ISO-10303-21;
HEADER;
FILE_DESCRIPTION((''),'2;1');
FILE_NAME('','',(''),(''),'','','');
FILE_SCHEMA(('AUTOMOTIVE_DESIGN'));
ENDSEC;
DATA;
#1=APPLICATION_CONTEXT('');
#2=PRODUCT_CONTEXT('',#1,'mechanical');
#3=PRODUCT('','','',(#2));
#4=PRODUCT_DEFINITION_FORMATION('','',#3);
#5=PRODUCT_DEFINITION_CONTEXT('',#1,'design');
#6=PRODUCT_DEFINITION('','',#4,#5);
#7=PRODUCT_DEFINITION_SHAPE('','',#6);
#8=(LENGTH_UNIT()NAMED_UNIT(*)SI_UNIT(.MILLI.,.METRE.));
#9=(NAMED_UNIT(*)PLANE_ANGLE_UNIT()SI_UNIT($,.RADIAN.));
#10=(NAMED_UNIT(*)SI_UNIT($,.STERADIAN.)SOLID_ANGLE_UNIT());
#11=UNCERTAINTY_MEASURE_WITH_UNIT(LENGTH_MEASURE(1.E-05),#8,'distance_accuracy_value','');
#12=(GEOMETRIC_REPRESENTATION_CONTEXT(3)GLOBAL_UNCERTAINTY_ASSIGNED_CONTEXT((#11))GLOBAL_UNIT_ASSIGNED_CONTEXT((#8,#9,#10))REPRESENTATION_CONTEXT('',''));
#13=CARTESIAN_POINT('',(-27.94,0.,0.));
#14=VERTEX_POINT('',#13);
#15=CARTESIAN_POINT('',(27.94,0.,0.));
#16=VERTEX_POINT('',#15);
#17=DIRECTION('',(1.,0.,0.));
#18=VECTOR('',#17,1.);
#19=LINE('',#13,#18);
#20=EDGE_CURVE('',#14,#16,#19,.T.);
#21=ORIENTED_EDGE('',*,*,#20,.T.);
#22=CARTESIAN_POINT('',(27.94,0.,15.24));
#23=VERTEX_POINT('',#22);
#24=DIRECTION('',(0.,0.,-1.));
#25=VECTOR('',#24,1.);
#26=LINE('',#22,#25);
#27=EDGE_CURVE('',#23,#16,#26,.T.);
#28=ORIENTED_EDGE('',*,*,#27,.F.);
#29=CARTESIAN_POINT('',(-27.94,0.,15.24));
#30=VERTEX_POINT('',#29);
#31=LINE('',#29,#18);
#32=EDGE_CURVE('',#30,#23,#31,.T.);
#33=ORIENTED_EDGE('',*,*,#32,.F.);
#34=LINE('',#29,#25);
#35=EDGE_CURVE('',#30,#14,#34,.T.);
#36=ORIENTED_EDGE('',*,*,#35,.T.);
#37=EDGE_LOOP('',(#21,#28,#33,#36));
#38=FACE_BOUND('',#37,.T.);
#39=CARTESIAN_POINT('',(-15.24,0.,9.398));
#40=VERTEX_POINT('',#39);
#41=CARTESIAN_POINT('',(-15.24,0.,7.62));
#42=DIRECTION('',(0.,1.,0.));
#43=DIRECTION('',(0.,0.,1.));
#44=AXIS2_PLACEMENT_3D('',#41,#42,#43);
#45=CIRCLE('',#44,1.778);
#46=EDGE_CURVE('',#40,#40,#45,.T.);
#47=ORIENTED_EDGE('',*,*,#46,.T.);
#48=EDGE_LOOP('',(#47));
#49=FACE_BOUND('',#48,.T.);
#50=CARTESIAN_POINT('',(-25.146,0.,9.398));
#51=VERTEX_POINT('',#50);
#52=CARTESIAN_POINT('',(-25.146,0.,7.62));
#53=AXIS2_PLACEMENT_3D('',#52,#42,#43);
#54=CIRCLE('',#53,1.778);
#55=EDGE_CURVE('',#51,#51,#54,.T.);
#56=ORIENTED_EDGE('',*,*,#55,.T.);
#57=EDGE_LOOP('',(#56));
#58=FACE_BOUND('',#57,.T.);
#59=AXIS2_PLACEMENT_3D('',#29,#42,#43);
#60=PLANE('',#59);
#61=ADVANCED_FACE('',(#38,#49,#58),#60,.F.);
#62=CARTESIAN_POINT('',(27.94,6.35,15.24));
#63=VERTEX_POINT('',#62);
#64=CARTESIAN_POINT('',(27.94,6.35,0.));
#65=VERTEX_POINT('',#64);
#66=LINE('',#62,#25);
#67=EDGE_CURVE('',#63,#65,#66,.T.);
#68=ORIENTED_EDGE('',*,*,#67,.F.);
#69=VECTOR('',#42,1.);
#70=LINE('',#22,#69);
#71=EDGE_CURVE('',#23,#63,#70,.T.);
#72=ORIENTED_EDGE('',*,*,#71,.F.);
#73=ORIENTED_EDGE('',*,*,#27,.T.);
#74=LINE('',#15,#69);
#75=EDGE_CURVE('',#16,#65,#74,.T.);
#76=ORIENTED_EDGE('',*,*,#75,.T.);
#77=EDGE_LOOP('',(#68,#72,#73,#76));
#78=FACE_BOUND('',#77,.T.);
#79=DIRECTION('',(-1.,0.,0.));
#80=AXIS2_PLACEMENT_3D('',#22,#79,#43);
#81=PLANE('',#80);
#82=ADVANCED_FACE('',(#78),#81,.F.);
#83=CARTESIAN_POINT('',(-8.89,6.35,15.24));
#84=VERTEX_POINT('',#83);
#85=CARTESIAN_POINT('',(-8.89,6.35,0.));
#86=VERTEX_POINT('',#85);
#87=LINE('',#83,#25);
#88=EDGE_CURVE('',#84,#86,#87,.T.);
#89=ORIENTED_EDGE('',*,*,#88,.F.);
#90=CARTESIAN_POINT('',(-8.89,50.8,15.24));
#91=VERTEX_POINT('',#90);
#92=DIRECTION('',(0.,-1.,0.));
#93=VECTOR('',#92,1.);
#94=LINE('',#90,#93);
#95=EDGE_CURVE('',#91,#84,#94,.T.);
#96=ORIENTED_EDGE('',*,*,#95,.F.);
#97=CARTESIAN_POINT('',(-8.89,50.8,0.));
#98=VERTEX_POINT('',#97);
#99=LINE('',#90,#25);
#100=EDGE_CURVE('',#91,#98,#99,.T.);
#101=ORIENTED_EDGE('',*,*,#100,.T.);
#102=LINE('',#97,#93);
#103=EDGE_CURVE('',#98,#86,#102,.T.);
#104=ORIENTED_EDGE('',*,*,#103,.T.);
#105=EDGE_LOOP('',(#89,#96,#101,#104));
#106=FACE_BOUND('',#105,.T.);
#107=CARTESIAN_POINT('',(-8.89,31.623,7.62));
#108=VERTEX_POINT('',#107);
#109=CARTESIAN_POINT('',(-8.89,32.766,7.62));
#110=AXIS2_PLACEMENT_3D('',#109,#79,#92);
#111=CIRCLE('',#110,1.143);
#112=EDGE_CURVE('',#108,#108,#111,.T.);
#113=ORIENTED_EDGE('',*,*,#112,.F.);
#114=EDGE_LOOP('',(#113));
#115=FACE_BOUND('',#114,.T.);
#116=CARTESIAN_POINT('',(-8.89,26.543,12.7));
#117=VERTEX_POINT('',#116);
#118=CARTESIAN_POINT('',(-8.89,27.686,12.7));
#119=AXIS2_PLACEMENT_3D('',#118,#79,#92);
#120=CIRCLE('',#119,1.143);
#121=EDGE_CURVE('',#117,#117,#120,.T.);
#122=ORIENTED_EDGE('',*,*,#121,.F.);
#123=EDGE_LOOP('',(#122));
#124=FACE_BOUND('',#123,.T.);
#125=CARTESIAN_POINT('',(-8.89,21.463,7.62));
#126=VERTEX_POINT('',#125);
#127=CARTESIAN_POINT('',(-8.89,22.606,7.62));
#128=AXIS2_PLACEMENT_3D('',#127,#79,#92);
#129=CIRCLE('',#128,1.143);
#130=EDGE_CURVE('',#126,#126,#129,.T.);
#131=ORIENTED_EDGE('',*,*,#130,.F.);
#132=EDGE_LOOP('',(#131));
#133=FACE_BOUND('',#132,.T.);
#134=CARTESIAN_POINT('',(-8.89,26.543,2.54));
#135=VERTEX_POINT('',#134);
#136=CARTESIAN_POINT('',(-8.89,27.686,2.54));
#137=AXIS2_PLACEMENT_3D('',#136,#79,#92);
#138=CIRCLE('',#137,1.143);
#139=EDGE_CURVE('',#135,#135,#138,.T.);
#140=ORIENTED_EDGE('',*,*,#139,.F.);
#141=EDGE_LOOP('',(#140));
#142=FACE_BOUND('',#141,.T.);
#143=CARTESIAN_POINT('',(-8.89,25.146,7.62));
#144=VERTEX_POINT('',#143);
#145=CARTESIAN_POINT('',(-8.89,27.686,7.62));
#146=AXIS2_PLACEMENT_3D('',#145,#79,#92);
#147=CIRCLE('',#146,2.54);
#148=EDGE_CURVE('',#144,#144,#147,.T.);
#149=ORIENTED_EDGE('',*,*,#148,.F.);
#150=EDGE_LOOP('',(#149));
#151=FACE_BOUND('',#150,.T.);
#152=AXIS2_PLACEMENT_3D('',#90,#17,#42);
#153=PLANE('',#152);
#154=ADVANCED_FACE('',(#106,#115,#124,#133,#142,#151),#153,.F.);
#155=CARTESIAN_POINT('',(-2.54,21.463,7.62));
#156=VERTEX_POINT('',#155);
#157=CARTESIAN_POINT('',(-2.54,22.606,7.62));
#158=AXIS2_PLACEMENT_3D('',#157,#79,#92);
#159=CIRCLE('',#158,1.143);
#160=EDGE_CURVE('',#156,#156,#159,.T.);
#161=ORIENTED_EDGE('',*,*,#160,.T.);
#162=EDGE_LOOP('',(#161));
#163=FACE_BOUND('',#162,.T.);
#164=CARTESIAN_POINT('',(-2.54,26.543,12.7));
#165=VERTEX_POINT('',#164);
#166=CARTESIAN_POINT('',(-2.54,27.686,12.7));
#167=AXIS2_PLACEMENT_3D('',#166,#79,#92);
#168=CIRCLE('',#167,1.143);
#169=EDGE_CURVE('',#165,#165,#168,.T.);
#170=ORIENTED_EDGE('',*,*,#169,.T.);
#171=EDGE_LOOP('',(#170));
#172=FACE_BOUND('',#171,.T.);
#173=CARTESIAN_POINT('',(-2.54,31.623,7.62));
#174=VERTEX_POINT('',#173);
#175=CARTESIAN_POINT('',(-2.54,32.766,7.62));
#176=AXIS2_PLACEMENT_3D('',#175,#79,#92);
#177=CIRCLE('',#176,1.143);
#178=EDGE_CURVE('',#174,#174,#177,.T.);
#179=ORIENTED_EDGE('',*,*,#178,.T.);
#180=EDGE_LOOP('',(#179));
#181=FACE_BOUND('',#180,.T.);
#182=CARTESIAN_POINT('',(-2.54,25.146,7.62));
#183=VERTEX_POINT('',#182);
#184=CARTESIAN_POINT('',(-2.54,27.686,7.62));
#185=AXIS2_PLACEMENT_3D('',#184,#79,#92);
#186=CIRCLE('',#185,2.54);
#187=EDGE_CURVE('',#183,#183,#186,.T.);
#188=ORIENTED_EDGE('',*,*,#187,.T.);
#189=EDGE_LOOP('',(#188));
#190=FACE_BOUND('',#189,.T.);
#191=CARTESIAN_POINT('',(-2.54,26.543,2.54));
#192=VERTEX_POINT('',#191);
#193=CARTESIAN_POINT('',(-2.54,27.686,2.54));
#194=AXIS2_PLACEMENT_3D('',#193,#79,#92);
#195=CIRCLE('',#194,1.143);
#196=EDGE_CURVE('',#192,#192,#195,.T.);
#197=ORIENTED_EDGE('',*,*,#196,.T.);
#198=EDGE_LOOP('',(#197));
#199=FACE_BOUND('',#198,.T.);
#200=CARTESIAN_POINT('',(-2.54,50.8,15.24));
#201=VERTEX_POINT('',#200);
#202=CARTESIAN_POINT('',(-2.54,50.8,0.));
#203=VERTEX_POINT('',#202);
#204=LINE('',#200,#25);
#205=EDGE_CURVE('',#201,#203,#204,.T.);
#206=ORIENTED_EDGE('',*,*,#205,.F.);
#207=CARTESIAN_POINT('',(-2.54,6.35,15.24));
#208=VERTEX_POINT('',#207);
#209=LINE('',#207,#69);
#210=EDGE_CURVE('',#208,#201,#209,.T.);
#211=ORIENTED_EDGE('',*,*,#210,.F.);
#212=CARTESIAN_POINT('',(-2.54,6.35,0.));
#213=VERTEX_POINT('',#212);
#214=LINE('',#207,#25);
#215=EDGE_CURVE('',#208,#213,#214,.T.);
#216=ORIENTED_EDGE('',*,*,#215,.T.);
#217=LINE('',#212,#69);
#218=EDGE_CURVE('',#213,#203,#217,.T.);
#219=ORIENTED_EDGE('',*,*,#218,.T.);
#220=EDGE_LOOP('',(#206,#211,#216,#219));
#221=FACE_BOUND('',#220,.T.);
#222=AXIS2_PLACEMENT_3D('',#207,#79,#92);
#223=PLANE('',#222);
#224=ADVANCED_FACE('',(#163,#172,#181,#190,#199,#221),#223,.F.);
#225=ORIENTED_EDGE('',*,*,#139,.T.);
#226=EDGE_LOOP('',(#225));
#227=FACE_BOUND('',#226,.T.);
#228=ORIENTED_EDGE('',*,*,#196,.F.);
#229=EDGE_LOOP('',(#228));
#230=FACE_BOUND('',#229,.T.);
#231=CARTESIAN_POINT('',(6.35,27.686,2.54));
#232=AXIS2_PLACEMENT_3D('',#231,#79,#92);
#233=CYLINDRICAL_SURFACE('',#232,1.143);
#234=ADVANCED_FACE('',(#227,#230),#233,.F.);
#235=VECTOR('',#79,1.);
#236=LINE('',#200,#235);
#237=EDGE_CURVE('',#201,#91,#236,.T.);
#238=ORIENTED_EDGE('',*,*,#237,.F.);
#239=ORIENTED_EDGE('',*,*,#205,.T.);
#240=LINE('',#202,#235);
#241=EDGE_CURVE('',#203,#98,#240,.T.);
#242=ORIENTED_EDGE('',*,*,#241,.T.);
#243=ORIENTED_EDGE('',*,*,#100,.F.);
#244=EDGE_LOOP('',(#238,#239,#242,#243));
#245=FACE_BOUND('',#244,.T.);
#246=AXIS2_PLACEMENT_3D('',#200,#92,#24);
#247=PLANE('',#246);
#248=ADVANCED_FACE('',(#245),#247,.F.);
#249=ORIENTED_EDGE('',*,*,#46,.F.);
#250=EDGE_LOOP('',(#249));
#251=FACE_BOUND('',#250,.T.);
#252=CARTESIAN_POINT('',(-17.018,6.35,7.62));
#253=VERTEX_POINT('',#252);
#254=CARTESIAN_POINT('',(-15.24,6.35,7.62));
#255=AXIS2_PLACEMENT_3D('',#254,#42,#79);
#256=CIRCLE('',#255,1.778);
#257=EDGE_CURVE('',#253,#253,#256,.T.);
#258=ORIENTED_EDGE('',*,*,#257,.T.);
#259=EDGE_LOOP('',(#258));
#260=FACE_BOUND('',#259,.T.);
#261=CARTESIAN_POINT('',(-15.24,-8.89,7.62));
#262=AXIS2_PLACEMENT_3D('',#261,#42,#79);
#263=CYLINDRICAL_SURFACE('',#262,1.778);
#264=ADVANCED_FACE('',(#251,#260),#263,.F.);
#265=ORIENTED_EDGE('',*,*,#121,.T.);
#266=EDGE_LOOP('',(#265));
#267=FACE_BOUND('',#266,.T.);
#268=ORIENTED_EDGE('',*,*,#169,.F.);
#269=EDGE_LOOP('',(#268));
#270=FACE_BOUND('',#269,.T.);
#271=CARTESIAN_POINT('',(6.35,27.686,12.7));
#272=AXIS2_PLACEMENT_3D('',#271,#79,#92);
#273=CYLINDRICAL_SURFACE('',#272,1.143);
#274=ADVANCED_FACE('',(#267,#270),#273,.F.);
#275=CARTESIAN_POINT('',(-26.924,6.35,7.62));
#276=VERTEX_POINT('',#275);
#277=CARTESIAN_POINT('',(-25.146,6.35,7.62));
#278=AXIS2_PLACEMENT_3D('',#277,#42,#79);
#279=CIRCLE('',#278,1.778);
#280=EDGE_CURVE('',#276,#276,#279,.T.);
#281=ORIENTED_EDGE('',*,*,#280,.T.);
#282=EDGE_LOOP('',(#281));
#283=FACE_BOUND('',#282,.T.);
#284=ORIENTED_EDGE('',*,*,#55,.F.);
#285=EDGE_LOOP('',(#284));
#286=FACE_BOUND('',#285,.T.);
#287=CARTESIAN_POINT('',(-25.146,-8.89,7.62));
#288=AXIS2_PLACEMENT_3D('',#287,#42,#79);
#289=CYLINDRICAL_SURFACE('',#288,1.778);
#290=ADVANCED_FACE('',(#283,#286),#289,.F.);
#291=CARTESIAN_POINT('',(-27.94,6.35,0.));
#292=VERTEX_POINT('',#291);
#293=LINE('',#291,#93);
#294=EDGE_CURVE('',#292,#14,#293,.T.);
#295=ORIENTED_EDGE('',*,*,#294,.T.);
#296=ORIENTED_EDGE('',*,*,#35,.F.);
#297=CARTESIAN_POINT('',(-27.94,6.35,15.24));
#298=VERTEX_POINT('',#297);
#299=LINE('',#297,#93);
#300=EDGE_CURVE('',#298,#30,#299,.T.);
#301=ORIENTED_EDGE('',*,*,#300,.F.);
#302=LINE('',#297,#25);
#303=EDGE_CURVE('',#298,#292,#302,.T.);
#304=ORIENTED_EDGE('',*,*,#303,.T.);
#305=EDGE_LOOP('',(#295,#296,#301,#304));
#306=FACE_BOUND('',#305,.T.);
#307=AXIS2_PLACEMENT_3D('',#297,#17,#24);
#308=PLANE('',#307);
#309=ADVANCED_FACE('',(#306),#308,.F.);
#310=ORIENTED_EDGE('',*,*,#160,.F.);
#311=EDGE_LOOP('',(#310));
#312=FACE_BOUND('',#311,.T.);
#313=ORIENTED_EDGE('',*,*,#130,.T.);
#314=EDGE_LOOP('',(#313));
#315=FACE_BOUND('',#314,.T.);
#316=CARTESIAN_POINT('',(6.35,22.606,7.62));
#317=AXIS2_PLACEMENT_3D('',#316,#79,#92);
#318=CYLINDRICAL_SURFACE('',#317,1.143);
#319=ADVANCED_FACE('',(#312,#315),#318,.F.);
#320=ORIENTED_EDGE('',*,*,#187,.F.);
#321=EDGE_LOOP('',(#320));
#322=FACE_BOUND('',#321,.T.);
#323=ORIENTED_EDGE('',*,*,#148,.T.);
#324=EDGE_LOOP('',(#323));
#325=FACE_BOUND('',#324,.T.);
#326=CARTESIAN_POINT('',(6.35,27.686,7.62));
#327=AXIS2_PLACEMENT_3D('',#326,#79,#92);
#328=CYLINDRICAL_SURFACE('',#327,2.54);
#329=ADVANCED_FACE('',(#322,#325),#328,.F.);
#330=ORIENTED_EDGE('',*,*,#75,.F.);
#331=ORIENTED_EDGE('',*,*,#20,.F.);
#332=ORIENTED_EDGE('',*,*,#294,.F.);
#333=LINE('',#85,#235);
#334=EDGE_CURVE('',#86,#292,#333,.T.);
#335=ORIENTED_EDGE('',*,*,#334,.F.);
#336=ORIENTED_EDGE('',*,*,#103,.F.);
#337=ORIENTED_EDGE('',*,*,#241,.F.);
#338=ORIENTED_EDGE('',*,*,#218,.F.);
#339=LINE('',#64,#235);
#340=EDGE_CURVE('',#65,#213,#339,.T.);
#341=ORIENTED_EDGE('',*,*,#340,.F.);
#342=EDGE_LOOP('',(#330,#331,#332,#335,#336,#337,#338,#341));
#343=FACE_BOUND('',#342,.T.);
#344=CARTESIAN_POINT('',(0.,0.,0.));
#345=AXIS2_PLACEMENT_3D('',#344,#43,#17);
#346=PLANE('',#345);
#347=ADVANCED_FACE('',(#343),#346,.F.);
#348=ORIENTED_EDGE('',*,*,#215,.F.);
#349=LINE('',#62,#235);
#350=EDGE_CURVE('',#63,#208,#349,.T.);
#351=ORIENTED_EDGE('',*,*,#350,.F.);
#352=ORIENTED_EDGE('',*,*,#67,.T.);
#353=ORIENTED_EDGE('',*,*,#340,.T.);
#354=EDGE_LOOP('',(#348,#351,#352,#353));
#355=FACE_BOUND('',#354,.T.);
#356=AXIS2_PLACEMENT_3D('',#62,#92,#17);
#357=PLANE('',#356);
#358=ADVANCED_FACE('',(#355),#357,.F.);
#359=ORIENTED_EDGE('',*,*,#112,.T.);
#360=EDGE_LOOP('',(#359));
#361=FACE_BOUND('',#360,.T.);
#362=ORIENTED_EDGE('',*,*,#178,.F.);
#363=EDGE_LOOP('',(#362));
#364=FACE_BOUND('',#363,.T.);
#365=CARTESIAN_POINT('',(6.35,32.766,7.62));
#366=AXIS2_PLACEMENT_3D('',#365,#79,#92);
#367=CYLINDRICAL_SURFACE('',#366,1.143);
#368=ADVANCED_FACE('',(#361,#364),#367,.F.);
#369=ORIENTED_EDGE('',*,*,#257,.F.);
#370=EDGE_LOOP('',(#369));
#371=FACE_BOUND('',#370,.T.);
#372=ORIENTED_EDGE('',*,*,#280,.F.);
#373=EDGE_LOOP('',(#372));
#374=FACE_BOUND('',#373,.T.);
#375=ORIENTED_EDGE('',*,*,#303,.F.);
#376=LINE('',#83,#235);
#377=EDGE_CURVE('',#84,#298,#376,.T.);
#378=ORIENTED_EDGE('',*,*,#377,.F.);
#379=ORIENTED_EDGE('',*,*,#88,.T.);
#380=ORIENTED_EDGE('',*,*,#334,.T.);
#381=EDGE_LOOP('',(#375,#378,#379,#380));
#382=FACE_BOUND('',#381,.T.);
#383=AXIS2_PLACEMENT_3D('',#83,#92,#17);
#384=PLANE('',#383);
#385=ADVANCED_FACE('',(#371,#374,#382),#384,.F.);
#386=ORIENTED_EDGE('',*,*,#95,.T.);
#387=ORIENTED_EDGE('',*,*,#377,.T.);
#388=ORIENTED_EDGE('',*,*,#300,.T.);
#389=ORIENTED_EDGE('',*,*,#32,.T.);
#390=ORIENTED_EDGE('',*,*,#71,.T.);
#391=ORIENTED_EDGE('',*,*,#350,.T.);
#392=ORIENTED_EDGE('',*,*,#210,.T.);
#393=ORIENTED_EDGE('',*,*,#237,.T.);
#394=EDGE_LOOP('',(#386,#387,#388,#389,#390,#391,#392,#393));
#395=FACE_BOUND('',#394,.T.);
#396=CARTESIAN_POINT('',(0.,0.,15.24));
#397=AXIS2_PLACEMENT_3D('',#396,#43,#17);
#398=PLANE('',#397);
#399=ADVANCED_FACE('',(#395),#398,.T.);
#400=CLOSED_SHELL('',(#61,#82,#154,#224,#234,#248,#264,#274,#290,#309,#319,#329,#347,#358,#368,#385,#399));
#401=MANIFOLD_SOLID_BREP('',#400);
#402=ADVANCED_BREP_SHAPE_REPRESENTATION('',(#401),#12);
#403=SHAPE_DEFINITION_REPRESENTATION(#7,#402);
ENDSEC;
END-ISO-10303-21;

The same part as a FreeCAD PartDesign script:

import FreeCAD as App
import Part
import Sketcher
from FreeCAD import Vector
Q = App.Units.Quantity


def add_polygon(sketch, points):
    """Adds a closed chain of lines whose ends are joined by coincident constraints."""
    first, n = sketch.GeometryCount, len(points)
    for a, b in zip(points, points[1:] + points[:1]):
        sketch.addGeometry(Part.LineSegment(App.Vector(*a, 0), App.Vector(*b, 0)), False)
    for i in range(n):
        sketch.addConstraint(Sketcher.Constraint("Coincident", first + i, 2, first + (i + 1) % n, 1))

doc = App.newDocument("Part")
body = doc.addObject("PartDesign::Body", "Body")

# Sketch on XY plane
sketch1 = body.newObject("Sketcher::SketchObject", "Sketch")
sketch1.AttachmentSupport = (doc.getObject("XY_Plane"), [""])
sketch1.MapMode = "FlatFace"
add_polygon(sketch1, [(-28, 0), (28, 0), (28, 6), (-3, 6), (-3, 51), (-9, 51), (-9, 6), (-28, 6)])  # lines 0-7
sketch1.addConstraint(Sketcher.Constraint("Horizontal", 0))
sketch1.addConstraint(Sketcher.Constraint("Vertical", 1))
sketch1.addConstraint(Sketcher.Constraint("Horizontal", 2))
sketch1.addConstraint(Sketcher.Constraint("Vertical", 3))
sketch1.addConstraint(Sketcher.Constraint("Horizontal", 4))
sketch1.addConstraint(Sketcher.Constraint("Vertical", 5))
sketch1.addConstraint(Sketcher.Constraint("Horizontal", 6))
sketch1.addConstraint(Sketcher.Constraint("Vertical", 7))
sketch1.addConstraint(Sketcher.Constraint("Symmetric", 0, 2, 7, 2, -1, 1))
sketch1.addConstraint(Sketcher.Constraint("Horizontal", 2, 2, 5, 2))
sketch1.addConstraint(Sketcher.Constraint("Equal", 4, 1))
sketch1.addConstraint(Sketcher.Constraint("DistanceX", 0, 1, 0, 2, Q("2.2 in")))
sketch1.addConstraint(Sketcher.Constraint("DistanceX", 2, 2, 2, 1, Q("1.2 in")))
sketch1.addConstraint(Sketcher.Constraint("DistanceY", -1, 1, 3, 2, Q("2 in")))
sketch1.addConstraint(Sketcher.Constraint("DistanceX", 4, 2, 4, 1, Q("0.25 in")))
pad1 = body.newObject("PartDesign::Pad", "Pad")
pad1.Profile = sketch1
pad1.Length = Q("0.6 in")

# Sketch on YZ plane
sketch2 = body.newObject("Sketcher::SketchObject", "Sketch001")
sketch2.AttachmentSupport = (doc.getObject("YZ_Plane"), [""])
sketch2.MapMode = "FlatFace"
sketch2.AttachmentOffset = App.Placement(Vector(0, 0, -0.35 * 25.4), App.Rotation())
sketch2.addGeometry(Part.Circle(Vector(32.8, 7.6, 0), Vector(0, 0, 1), 1.1), False)
sketch2.addGeometry(Part.Circle(Vector(27.7, 7.6, 0), Vector(0, 0, 1), 2.5), False)
sketch2.addGeometry(Part.Circle(Vector(27.7, 12.7, 0), Vector(0, 0, 1), 1.1), False)
sketch2.addGeometry(Part.Circle(Vector(22.6, 7.6, 0), Vector(0, 0, 1), 1.1), False)
sketch2.addGeometry(Part.Circle(Vector(27.7, 2.5, 0), Vector(0, 0, 1), 1.1), False)
sketch2.addConstraint(Sketcher.Constraint("Equal", 0, 2))
sketch2.addConstraint(Sketcher.Constraint("Equal", 2, 3))
sketch2.addConstraint(Sketcher.Constraint("Equal", 3, 4))
sketch2.addConstraint(Sketcher.Constraint("Horizontal", 0, 3, 1, 3))
sketch2.addConstraint(Sketcher.Constraint("Horizontal", 1, 3, 3, 3))
sketch2.addConstraint(Sketcher.Constraint("Vertical", 1, 3, 2, 3))
sketch2.addConstraint(Sketcher.Constraint("Vertical", 2, 3, 4, 3))
sketch2.addConstraint(Sketcher.Constraint("Diameter", 1, Q("0.2 in")))
sketch2.addConstraint(Sketcher.Constraint("Diameter", 0, Q("0.09 in")))
sketch2.addConstraint(Sketcher.Constraint("DistanceY", -1, 1, 0, 3, Q("0.3 in")))
sketch2.addConstraint(Sketcher.Constraint("DistanceY", -1, 1, 2, 3, Q("0.5 in")))
sketch2.addConstraint(Sketcher.Constraint("DistanceY", -1, 1, 4, 3, Q("0.1 in")))
sketch2.addConstraint(Sketcher.Constraint("DistanceX", 1, 3, 0, 3, Q("0.2 in")))
sketch2.addConstraint(Sketcher.Constraint("DistanceX", 3, 3, 1, 3, Q("0.2 in")))
sketch2.addConstraint(Sketcher.Constraint("DistanceX", -1, 1, 0, 3, Q("1.29 in")))
pocket1 = body.newObject("PartDesign::Pocket", "Pocket")
pocket1.Profile = sketch2
pocket1.Length = Q("0.6 in")
pocket1.Reversed = True

# Sketch on XZ plane
sketch3 = body.newObject("Sketcher::SketchObject", "Sketch002")
sketch3.AttachmentSupport = (doc.getObject("XZ_Plane"), [""])
sketch3.MapMode = "FlatFace"
sketch3.AttachmentOffset = App.Placement(Vector(0, 0, -0.25 * 25.4), App.Rotation())
sketch3.addGeometry(Part.Circle(Vector(-25.1, 7.6, 0), Vector(0, 0, 1), 1.8), False)
sketch3.addGeometry(Part.Circle(Vector(-15.2, 7.6, 0), Vector(0, 0, 1), 1.8), False)
sketch3.addConstraint(Sketcher.Constraint("Equal", 0, 1))
sketch3.addConstraint(Sketcher.Constraint("Horizontal", 0, 3, 1, 3))
sketch3.addConstraint(Sketcher.Constraint("Diameter", 0, Q("0.14 in")))
sketch3.addConstraint(Sketcher.Constraint("DistanceY", -1, 1, 0, 3, Q("0.3 in")))
sketch3.addConstraint(Sketcher.Constraint("DistanceX", 1, 3, -1, 1, Q("0.6 in")))
sketch3.addConstraint(Sketcher.Constraint("DistanceX", 0, 3, -1, 1, Q("0.99 in")))
pocket2 = body.newObject("PartDesign::Pocket", "Pocket001")
pocket2.Profile = sketch3
pocket2.Length = Q("0.6 in")
pocket2.Reversed = True

doc.recompute()
